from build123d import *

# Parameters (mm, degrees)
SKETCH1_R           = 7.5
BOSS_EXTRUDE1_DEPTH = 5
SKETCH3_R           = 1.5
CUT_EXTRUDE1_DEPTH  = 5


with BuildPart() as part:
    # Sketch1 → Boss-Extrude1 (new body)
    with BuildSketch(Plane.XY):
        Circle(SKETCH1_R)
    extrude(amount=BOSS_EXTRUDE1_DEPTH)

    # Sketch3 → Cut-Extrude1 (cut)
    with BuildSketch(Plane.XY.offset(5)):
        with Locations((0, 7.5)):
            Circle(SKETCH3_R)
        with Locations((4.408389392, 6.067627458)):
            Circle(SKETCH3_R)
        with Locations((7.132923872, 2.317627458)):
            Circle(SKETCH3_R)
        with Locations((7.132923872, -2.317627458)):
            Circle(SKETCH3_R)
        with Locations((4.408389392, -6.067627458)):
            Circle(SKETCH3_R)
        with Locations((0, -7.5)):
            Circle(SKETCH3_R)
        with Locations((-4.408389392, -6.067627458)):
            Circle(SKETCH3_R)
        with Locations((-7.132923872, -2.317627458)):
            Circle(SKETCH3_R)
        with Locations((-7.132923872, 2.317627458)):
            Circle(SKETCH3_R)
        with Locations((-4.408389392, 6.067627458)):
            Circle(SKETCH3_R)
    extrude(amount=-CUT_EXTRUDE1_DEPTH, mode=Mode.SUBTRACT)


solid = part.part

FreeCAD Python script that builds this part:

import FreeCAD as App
import Part
import Sketcher
Q = App.Units.Quantity

doc = App.newDocument("Part")
body = doc.addObject("PartDesign::Body", "Body")

sketch1 = doc.addObject("Sketcher::SketchObject", "Sketch")
body.addObject(sketch1)
sketch1.AttachmentSupport = (doc.XY_Plane, [""])
sketch1.MapMode = "FlatFace"
sketch1.addGeometry(Part.Circle(App.Vector(0, 0, 0), App.Vector(0, 0, 1), 8), False)
sketch1.addConstraint([
    Sketcher.Constraint("Coincident", 0, 3, -1, 1),
    Sketcher.Constraint("Diameter", 0, Q("15 mm")),
])
pad1 = doc.addObject("PartDesign::Pad", "Pad")
body.addObject(pad1)
pad1.Profile = sketch1
pad1.Length = 5

sketch2 = doc.addObject("Sketcher::SketchObject", "Sketch001")
body.addObject(sketch2)
sketch2.AttachmentSupport = (doc.XY_Plane, [""])
sketch2.MapMode = "FlatFace"
sketch2.AttachmentOffset = App.Placement(App.Vector(0, 0, 5), App.Rotation())
sketch2.addGeometry([
    Part.Circle(App.Vector(0, 7.5, 0), App.Vector(0, 0, 1), 1.5),
    Part.Circle(App.Vector(4.4, 6.1, 0), App.Vector(0, 0, 1), 1.5),
    Part.Circle(App.Vector(7.1, 2.3, 0), App.Vector(0, 0, 1), 1.5),
    Part.Circle(App.Vector(7.1, -2.3, 0), App.Vector(0, 0, 1), 1.5),
    Part.Circle(App.Vector(4.4, -6.1, 0), App.Vector(0, 0, 1), 1.5),
    Part.Circle(App.Vector(0, -7.5, 0), App.Vector(0, 0, 1), 1.5),
    Part.Circle(App.Vector(-4.4, -6.1, 0), App.Vector(0, 0, 1), 1.5),
    Part.Circle(App.Vector(-7.1, -2.3, 0), App.Vector(0, 0, 1), 1.5),
    Part.Circle(App.Vector(-7.1, 2.3, 0), App.Vector(0, 0, 1), 1.5),
    Part.Circle(App.Vector(-4.4, 6.1, 0), App.Vector(0, 0, 1), 1.5),
], False)
sketch2.addConstraint([
    Sketcher.Constraint("Equal", 0, 1),
    Sketcher.Constraint("Equal", 1, 2),
    Sketcher.Constraint("Equal", 2, 3),
    Sketcher.Constraint("Equal", 3, 4),
    Sketcher.Constraint("Equal", 4, 5),
    Sketcher.Constraint("Equal", 5, 6),
    Sketcher.Constraint("Equal", 6, 7),
    Sketcher.Constraint("Equal", 7, 8),
    Sketcher.Constraint("Equal", 8, 9),
    Sketcher.Constraint("Symmetric", 0, 3, 5, 3, -1, 1),
    Sketcher.Constraint("Symmetric", 1, 3, 6, 3, -1, 1),
    Sketcher.Constraint("Symmetric", 2, 3, 7, 3, -1, 1),
    Sketcher.Constraint("Symmetric", 3, 3, 8, 3, -1, 1),
    Sketcher.Constraint("Symmetric", 4, 3, 9, 3, -1, 1),
    Sketcher.Constraint("Symmetric", 4, 3, 6, 3, -2),
    Sketcher.Constraint("Symmetric", 3, 3, 7, 3, -2),
    Sketcher.Constraint("PointOnObject", 0, 3, -2),
    Sketcher.Constraint("Diameter", 0, Q("3 mm")),
    Sketcher.Constraint("DistanceY", 5, 3, 0, 3, Q("15 mm")),
    Sketcher.Constraint("DistanceY", 2, 3, 1, 3, Q("3.75 mm")),
    Sketcher.Constraint("DistanceX", -1, 1, 1, 3, Q("4.408389 mm")),
    Sketcher.Constraint("DistanceY", -1, 1, 1, 3, Q("6.067627 mm")),
    Sketcher.Constraint("DistanceX", -1, 1, 2, 3, Q("7.132924 mm")),
])
pocket1 = doc.addObject("PartDesign::Pocket", "Pocket")
body.addObject(pocket1)
pocket1.Profile = sketch2
pocket1.Length = 5

doc.recompute()
